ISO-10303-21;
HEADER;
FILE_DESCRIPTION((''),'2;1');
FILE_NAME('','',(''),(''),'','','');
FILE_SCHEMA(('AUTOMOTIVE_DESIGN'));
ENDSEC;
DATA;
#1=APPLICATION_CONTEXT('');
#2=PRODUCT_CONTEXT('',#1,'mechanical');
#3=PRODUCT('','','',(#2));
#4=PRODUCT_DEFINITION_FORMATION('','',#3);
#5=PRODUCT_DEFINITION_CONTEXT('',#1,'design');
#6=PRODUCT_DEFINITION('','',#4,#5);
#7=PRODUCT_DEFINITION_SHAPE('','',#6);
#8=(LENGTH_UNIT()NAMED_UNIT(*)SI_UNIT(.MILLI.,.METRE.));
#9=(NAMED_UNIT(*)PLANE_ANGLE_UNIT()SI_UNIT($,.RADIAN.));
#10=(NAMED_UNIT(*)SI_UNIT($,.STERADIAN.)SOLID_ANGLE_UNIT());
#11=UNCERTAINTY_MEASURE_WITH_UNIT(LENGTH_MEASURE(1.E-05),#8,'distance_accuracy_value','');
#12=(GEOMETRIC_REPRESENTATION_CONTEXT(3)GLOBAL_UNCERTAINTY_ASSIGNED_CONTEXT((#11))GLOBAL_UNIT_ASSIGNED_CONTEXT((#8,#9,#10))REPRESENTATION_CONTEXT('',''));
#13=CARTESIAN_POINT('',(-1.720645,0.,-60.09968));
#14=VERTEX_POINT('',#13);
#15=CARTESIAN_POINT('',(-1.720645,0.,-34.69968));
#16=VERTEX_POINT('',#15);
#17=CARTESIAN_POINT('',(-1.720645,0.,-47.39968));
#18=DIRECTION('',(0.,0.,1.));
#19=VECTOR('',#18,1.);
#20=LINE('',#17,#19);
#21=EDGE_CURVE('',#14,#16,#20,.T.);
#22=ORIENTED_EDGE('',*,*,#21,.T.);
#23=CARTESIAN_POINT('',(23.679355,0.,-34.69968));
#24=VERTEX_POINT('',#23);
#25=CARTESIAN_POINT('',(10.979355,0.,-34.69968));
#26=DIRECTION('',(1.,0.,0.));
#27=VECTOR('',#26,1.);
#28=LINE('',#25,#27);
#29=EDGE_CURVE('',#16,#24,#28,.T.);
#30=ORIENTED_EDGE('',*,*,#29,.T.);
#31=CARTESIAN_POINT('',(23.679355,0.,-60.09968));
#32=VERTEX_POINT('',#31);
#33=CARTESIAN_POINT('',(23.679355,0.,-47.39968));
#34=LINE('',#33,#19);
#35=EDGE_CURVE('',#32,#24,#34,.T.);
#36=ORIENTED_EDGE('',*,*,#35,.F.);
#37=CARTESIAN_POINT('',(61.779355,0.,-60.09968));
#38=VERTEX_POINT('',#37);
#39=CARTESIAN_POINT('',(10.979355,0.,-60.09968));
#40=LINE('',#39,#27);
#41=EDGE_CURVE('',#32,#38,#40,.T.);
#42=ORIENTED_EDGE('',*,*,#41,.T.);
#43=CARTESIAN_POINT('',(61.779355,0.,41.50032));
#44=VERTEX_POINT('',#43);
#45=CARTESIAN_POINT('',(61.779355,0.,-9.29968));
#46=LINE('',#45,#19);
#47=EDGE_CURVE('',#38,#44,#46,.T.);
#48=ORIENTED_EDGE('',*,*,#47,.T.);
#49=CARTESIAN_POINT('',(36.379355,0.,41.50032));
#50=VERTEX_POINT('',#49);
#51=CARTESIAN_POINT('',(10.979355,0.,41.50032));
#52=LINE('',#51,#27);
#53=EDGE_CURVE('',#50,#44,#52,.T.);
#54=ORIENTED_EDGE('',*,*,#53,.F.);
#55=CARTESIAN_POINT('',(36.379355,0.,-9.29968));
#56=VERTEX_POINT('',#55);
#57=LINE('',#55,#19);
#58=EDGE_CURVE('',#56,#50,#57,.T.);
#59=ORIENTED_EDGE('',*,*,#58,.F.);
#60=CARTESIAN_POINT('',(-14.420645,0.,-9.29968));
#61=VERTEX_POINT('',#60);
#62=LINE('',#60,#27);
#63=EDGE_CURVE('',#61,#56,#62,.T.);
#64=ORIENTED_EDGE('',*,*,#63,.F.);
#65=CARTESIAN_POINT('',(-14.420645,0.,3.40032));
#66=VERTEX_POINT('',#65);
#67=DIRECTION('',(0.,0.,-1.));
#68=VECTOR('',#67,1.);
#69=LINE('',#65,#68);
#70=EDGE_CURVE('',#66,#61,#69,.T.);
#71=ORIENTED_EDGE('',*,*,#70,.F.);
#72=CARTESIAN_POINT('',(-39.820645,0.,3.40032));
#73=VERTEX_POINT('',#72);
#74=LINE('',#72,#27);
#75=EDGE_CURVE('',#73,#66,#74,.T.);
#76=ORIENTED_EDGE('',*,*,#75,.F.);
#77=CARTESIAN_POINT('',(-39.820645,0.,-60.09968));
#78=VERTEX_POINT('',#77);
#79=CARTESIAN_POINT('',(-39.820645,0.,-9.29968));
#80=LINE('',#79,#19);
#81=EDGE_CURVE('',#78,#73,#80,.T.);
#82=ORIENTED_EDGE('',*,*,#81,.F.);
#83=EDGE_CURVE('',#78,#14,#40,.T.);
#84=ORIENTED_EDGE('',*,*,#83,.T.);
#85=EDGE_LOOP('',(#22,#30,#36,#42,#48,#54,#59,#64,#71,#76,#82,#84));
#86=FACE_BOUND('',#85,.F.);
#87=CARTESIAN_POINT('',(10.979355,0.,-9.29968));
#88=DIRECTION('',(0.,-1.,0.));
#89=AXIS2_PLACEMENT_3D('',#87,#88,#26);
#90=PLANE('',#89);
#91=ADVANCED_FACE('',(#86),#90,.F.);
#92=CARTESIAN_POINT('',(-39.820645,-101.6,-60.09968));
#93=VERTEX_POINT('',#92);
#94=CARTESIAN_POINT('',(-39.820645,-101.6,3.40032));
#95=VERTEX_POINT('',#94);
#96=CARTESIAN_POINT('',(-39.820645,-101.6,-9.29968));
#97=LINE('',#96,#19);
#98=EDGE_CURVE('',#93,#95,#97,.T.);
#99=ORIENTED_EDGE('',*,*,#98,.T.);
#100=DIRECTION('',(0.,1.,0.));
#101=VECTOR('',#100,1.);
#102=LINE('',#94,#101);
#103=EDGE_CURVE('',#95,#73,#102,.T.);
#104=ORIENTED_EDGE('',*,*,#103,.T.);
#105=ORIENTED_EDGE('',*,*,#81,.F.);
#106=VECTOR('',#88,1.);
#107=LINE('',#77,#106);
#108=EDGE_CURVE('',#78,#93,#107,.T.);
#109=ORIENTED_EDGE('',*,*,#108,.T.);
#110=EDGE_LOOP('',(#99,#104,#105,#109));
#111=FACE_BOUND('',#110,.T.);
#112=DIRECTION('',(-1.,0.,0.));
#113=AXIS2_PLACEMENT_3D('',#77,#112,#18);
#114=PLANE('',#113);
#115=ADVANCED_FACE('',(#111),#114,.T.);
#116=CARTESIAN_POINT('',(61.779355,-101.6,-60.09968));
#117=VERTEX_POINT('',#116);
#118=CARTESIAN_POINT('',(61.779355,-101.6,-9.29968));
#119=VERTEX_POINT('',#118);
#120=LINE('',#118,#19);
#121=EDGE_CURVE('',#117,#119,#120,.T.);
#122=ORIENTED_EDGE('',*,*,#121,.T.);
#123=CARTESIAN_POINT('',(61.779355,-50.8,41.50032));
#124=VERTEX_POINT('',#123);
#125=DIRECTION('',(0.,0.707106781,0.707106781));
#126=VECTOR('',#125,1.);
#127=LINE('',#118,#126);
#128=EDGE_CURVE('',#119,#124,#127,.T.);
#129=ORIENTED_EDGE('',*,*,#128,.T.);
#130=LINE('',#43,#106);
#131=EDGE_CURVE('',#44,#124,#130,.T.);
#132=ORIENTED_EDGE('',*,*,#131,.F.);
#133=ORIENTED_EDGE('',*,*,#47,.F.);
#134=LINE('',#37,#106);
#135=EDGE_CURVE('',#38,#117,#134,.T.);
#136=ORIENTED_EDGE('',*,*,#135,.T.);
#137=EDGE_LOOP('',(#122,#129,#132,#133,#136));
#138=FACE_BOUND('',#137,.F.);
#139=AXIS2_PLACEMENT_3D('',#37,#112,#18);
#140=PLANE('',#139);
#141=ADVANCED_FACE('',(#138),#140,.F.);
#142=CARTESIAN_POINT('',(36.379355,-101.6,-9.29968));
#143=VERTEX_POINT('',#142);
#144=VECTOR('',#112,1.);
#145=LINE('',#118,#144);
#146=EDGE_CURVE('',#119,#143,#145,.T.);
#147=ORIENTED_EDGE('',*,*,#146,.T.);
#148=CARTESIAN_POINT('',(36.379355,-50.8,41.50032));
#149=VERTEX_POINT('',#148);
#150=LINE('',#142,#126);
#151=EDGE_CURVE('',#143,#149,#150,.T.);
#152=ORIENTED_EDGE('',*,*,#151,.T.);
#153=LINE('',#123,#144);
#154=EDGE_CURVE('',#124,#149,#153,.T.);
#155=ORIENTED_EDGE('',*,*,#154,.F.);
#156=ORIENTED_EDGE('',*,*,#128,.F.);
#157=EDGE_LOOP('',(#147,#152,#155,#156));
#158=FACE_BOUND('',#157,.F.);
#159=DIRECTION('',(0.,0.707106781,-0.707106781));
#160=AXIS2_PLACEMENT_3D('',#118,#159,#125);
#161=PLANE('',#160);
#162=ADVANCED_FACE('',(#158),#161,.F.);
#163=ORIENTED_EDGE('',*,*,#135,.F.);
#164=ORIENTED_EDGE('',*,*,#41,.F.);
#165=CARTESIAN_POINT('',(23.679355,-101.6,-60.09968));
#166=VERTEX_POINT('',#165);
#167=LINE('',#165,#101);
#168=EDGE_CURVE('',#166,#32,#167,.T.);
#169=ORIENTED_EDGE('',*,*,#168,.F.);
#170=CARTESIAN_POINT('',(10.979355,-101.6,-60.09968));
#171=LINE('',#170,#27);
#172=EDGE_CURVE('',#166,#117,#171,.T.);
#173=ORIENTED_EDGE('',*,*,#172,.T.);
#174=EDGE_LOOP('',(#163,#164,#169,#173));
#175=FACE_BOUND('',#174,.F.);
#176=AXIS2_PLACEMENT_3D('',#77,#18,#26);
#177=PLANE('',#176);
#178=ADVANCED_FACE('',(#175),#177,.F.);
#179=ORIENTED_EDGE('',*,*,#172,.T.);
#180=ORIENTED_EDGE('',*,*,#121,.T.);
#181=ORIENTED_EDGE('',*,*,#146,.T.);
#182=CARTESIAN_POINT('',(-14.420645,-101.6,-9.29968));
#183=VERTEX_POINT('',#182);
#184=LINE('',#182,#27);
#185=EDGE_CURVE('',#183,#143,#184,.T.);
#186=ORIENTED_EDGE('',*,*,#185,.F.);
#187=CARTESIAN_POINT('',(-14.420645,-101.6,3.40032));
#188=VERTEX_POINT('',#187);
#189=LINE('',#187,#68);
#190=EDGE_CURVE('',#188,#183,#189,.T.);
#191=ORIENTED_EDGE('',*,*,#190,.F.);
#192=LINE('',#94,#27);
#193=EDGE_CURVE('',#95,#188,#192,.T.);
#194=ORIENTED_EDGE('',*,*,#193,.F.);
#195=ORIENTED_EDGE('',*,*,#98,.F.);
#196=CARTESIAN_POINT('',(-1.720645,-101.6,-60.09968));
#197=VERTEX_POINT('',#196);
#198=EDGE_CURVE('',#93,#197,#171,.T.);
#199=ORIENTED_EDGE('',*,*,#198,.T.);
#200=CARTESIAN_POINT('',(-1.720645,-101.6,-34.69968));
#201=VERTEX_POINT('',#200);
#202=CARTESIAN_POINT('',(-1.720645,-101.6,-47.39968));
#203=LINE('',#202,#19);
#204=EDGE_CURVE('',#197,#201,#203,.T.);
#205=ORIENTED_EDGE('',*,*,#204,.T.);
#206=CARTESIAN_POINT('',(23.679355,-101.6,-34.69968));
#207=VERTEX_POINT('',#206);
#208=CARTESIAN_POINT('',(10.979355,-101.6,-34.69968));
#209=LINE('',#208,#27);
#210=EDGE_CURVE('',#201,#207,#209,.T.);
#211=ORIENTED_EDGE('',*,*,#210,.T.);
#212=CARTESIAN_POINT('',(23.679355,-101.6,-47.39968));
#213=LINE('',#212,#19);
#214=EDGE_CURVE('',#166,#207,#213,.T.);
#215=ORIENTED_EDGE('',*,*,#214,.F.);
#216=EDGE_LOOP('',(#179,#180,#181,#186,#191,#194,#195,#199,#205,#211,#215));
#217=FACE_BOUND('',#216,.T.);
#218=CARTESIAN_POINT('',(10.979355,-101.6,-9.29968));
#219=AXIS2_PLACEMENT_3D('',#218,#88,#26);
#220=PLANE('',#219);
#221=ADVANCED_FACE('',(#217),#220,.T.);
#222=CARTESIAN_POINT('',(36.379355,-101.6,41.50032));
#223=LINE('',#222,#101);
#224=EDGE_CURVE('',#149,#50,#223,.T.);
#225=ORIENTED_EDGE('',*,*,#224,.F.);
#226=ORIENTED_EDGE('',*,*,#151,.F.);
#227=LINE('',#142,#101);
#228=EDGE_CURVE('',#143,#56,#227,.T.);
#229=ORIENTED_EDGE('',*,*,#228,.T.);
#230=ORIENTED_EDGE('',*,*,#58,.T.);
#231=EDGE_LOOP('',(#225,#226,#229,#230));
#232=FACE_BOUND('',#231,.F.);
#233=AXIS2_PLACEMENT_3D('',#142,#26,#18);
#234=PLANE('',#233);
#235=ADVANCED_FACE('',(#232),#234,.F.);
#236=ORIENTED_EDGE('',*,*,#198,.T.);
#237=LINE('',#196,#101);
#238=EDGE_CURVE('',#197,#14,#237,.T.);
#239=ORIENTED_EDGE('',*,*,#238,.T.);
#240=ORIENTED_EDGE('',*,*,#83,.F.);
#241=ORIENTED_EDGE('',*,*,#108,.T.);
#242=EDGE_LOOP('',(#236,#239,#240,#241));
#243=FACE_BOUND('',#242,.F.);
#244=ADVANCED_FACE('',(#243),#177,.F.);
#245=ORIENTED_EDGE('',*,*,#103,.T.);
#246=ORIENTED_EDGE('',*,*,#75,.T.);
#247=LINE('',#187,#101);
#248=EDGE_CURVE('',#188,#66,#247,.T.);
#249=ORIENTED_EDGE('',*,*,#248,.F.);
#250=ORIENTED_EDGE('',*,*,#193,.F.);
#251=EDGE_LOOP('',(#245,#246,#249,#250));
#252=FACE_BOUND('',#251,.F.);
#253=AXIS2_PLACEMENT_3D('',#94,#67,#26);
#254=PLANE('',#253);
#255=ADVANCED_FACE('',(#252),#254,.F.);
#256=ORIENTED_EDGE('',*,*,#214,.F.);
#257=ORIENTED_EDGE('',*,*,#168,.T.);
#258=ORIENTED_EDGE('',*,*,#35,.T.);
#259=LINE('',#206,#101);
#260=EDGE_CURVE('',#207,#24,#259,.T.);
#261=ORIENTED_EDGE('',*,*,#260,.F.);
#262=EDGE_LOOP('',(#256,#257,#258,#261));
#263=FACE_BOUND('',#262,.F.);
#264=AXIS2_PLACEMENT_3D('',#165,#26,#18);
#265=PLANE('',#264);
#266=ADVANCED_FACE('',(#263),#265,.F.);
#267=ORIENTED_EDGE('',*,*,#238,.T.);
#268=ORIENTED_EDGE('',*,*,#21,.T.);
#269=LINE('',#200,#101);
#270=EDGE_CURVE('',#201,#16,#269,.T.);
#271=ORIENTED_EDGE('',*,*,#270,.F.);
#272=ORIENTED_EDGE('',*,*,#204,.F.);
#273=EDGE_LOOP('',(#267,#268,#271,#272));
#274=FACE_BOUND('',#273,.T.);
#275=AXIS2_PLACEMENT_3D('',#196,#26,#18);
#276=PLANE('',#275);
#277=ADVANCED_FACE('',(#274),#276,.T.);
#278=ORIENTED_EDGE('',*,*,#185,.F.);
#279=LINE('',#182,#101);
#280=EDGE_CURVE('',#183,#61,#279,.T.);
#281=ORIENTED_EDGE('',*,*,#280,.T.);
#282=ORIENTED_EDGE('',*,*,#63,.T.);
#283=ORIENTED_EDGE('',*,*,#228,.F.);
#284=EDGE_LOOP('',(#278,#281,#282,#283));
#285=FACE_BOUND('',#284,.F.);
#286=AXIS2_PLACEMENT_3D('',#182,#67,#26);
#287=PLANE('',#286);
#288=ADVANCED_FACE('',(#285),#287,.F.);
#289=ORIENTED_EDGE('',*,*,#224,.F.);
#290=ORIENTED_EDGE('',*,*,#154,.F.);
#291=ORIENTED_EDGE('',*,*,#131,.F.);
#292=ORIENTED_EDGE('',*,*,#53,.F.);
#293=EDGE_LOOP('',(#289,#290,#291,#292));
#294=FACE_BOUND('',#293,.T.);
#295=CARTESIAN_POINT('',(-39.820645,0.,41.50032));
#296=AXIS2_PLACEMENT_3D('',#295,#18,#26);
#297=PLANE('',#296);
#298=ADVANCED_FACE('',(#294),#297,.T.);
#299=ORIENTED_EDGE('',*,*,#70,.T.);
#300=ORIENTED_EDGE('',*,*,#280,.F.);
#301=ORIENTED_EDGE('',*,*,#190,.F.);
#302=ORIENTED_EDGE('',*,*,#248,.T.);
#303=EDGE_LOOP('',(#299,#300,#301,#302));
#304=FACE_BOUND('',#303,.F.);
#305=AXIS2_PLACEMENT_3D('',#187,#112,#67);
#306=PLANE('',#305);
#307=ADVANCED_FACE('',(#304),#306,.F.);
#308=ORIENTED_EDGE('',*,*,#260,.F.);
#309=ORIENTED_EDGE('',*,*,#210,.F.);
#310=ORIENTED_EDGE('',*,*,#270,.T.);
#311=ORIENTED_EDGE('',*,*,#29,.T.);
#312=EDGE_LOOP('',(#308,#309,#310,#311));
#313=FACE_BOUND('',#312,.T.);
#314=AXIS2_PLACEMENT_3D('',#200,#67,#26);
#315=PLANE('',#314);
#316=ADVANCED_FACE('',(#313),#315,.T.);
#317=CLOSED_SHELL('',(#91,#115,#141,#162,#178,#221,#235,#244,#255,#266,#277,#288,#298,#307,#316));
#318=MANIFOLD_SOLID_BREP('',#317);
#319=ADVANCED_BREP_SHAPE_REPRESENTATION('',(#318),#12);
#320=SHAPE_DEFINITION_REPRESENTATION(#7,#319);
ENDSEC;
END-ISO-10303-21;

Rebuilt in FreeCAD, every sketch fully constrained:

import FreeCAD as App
import Part
import Sketcher
Q = App.Units.Quantity

doc = App.newDocument("Part")
body = doc.addObject("PartDesign::Body", "Body")

# Sketch on XZ plane
sketch1 = doc.addObject("Sketcher::SketchObject", "Sketch")
body.addObject(sketch1)
sketch1.AttachmentSupport = (doc.XZ_Plane, [""])
sketch1.MapMode = "FlatFace"
sketch1.addGeometry([
    Part.LineSegment(App.Vector(-40, 42, 0), App.Vector(-40, -60, 0)),
    Part.LineSegment(App.Vector(-40, -60, 0), App.Vector(62, -60, 0)),
    Part.LineSegment(App.Vector(62, -60, 0), App.Vector(62, 42, 0)),
    Part.LineSegment(App.Vector(62, 42, 0), App.Vector(-40, 42, 0)),
], False)
sketch1.addConstraint([
    Sketcher.Constraint("Coincident", 0, 2, 1, 1),
    Sketcher.Constraint("Coincident", 1, 2, 2, 1),
    Sketcher.Constraint("Coincident", 2, 2, 3, 1),
    Sketcher.Constraint("Coincident", 3, 2, 0, 1),
    Sketcher.Constraint("Vertical", 0),
    Sketcher.Constraint("Horizontal", 1),
    Sketcher.Constraint("Vertical", 2),
    Sketcher.Constraint("Horizontal", 3),
    Sketcher.Constraint("Equal", 3, 0),
    Sketcher.Constraint("DistanceX", 1, 1, 1, 2, Q("4 in")),
    Sketcher.Constraint("DistanceY", 0, 2, -1, 1, 60.09968),
    Sketcher.Constraint("DistanceX", 0, 2, -1, 1, 39.820645),
])
pad1 = doc.addObject("PartDesign::Pad", "Pad")
body.addObject(pad1)
pad1.Profile = sketch1
pad1.Length = Q("4 in")

# Sketch on XZ plane
sketch2 = doc.addObject("Sketcher::SketchObject", "Sketch001")
body.addObject(sketch2)
sketch2.AttachmentSupport = (doc.XZ_Plane, [""])
sketch2.MapMode = "FlatFace"
sketch2.AttachmentOffset = App.Placement(App.Vector(0, 0, 4 * 25.4), App.Rotation())
sketch2.addGeometry([
    Part.LineSegment(App.Vector(-40, 42, 0), App.Vector(-40, 3, 0)),  # 0
    Part.LineSegment(App.Vector(-40, 3, 0), App.Vector(-14, 3, 0)),  # 1
    Part.LineSegment(App.Vector(-14, 3, 0), App.Vector(-14, -9, 0)),  # 2
    Part.LineSegment(App.Vector(-14, -9, 0), App.Vector(36, -9, 0)),  # 3
    Part.LineSegment(App.Vector(36, -9, 0), App.Vector(36, 42, 0)),  # 4
    Part.LineSegment(App.Vector(36, 42, 0), App.Vector(-40, 42, 0)),  # 5
], False)
sketch2.addConstraint([
    Sketcher.Constraint("Coincident", 0, 2, 1, 1),
    Sketcher.Constraint("Coincident", 1, 2, 2, 1),
    Sketcher.Constraint("Coincident", 2, 2, 3, 1),
    Sketcher.Constraint("Coincident", 3, 2, 4, 1),
    Sketcher.Constraint("Coincident", 4, 2, 5, 1),
    Sketcher.Constraint("Coincident", 5, 2, 0, 1),
    Sketcher.Constraint("Vertical", 0),
    Sketcher.Constraint("Horizontal", 1),
    Sketcher.Constraint("Vertical", 2),
    Sketcher.Constraint("Horizontal", 3),
    Sketcher.Constraint("Vertical", 4),
    Sketcher.Constraint("Horizontal", 5),
    Sketcher.Constraint("Equal", 3, 4),
    Sketcher.Constraint("DistanceX", 1, 1, 1, 2, Q("1 in")),
    Sketcher.Constraint("DistanceX", 3, 1, 3, 2, Q("2 in")),
    Sketcher.Constraint("DistanceY", 0, 2, 0, 1, Q("1.5 in")),
    Sketcher.Constraint("DistanceY", -1, 1, 0, 2, 3.40032),
    Sketcher.Constraint("DistanceX", 0, 2, -1, 1, 39.820645),
])
pocket1 = doc.addObject("PartDesign::Pocket", "Pocket")
body.addObject(pocket1)
pocket1.Profile = sketch2
pocket1.Length = Q("4 in")

# Sketch on XZ plane
sketch3 = doc.addObject("Sketcher::SketchObject", "Sketch002")
body.addObject(sketch3)
sketch3.AttachmentSupport = (doc.XZ_Plane, [""])
sketch3.MapMode = "FlatFace"
sketch3.AttachmentOffset = App.Placement(App.Vector(0, 0, 4 * 25.4), App.Rotation())
sketch3.addGeometry([
    Part.LineSegment(App.Vector(-2, -35, 0), App.Vector(-2, -60, 0)),
    Part.LineSegment(App.Vector(-2, -60, 0), App.Vector(24, -60, 0)),
    Part.LineSegment(App.Vector(24, -60, 0), App.Vector(24, -35, 0)),
    Part.LineSegment(App.Vector(24, -35, 0), App.Vector(-2, -35, 0)),
], False)
sketch3.addConstraint([
    Sketcher.Constraint("Coincident", 0, 2, 1, 1),
    Sketcher.Constraint("Coincident", 1, 2, 2, 1),
    Sketcher.Constraint("Coincident", 2, 2, 3, 1),
    Sketcher.Constraint("Coincident", 3, 2, 0, 1),
    Sketcher.Constraint("Vertical", 0),
    Sketcher.Constraint("Horizontal", 1),
    Sketcher.Constraint("Vertical", 2),
    Sketcher.Constraint("Horizontal", 3),
    Sketcher.Constraint("Equal", 3, 0),
    Sketcher.Constraint("DistanceX", 1, 1, 1, 2, Q("1 in")),
    Sketcher.Constraint("DistanceY", 0, 2, -1, 1, 60.09968),
    Sketcher.Constraint("DistanceX", 0, 2, -1, 1, 1.720645),
])
pocket2 = doc.addObject("PartDesign::Pocket", "Pocket001")
body.addObject(pocket2)
pocket2.Profile = sketch3
pocket2.Length = Q("4 in")

# Sketch on YZ plane
sketch4 = doc.addObject("Sketcher::SketchObject", "Sketch003")
body.addObject(sketch4)
sketch4.AttachmentSupport = (doc.YZ_Plane, [""])
sketch4.MapMode = "FlatFace"
sketch4.AttachmentOffset = App.Placement(App.Vector(0, 0, 61.779355), App.Rotation())
sketch4.addGeometry([
    Part.LineSegment(App.Vector(-102, -9, 0), App.Vector(-51, 42, 0)),
    Part.LineSegment(App.Vector(-51, 42, 0), App.Vector(-102, 42, 0)),
    Part.LineSegment(App.Vector(-102, 42, 0), App.Vector(-102, -9, 0)),
], False)
sketch4.addConstraint([
    Sketcher.Constraint("Coincident", 0, 2, 1, 1),
    Sketcher.Constraint("Coincident", 1, 2, 2, 1),
    Sketcher.Constraint("Coincident", 2, 2, 0, 1),
    Sketcher.Constraint("Horizontal", 1),
    Sketcher.Constraint("Vertical", 2),
    Sketcher.Constraint("Equal", 1, 2),
    Sketcher.Constraint("DistanceX", 1, 2, 1, 1, Q("2 in")),
    Sketcher.Constraint("DistanceX", 0, 2, -1, 1, Q("2 in")),
    Sketcher.Constraint("DistanceY", -1, 1, 0, 2, 41.50032),
])
pocket3 = doc.addObject("PartDesign::Pocket", "Pocket002")
body.addObject(pocket3)
pocket3.Profile = sketch4
pocket3.Length = Q("1 in")

doc.recompute()
